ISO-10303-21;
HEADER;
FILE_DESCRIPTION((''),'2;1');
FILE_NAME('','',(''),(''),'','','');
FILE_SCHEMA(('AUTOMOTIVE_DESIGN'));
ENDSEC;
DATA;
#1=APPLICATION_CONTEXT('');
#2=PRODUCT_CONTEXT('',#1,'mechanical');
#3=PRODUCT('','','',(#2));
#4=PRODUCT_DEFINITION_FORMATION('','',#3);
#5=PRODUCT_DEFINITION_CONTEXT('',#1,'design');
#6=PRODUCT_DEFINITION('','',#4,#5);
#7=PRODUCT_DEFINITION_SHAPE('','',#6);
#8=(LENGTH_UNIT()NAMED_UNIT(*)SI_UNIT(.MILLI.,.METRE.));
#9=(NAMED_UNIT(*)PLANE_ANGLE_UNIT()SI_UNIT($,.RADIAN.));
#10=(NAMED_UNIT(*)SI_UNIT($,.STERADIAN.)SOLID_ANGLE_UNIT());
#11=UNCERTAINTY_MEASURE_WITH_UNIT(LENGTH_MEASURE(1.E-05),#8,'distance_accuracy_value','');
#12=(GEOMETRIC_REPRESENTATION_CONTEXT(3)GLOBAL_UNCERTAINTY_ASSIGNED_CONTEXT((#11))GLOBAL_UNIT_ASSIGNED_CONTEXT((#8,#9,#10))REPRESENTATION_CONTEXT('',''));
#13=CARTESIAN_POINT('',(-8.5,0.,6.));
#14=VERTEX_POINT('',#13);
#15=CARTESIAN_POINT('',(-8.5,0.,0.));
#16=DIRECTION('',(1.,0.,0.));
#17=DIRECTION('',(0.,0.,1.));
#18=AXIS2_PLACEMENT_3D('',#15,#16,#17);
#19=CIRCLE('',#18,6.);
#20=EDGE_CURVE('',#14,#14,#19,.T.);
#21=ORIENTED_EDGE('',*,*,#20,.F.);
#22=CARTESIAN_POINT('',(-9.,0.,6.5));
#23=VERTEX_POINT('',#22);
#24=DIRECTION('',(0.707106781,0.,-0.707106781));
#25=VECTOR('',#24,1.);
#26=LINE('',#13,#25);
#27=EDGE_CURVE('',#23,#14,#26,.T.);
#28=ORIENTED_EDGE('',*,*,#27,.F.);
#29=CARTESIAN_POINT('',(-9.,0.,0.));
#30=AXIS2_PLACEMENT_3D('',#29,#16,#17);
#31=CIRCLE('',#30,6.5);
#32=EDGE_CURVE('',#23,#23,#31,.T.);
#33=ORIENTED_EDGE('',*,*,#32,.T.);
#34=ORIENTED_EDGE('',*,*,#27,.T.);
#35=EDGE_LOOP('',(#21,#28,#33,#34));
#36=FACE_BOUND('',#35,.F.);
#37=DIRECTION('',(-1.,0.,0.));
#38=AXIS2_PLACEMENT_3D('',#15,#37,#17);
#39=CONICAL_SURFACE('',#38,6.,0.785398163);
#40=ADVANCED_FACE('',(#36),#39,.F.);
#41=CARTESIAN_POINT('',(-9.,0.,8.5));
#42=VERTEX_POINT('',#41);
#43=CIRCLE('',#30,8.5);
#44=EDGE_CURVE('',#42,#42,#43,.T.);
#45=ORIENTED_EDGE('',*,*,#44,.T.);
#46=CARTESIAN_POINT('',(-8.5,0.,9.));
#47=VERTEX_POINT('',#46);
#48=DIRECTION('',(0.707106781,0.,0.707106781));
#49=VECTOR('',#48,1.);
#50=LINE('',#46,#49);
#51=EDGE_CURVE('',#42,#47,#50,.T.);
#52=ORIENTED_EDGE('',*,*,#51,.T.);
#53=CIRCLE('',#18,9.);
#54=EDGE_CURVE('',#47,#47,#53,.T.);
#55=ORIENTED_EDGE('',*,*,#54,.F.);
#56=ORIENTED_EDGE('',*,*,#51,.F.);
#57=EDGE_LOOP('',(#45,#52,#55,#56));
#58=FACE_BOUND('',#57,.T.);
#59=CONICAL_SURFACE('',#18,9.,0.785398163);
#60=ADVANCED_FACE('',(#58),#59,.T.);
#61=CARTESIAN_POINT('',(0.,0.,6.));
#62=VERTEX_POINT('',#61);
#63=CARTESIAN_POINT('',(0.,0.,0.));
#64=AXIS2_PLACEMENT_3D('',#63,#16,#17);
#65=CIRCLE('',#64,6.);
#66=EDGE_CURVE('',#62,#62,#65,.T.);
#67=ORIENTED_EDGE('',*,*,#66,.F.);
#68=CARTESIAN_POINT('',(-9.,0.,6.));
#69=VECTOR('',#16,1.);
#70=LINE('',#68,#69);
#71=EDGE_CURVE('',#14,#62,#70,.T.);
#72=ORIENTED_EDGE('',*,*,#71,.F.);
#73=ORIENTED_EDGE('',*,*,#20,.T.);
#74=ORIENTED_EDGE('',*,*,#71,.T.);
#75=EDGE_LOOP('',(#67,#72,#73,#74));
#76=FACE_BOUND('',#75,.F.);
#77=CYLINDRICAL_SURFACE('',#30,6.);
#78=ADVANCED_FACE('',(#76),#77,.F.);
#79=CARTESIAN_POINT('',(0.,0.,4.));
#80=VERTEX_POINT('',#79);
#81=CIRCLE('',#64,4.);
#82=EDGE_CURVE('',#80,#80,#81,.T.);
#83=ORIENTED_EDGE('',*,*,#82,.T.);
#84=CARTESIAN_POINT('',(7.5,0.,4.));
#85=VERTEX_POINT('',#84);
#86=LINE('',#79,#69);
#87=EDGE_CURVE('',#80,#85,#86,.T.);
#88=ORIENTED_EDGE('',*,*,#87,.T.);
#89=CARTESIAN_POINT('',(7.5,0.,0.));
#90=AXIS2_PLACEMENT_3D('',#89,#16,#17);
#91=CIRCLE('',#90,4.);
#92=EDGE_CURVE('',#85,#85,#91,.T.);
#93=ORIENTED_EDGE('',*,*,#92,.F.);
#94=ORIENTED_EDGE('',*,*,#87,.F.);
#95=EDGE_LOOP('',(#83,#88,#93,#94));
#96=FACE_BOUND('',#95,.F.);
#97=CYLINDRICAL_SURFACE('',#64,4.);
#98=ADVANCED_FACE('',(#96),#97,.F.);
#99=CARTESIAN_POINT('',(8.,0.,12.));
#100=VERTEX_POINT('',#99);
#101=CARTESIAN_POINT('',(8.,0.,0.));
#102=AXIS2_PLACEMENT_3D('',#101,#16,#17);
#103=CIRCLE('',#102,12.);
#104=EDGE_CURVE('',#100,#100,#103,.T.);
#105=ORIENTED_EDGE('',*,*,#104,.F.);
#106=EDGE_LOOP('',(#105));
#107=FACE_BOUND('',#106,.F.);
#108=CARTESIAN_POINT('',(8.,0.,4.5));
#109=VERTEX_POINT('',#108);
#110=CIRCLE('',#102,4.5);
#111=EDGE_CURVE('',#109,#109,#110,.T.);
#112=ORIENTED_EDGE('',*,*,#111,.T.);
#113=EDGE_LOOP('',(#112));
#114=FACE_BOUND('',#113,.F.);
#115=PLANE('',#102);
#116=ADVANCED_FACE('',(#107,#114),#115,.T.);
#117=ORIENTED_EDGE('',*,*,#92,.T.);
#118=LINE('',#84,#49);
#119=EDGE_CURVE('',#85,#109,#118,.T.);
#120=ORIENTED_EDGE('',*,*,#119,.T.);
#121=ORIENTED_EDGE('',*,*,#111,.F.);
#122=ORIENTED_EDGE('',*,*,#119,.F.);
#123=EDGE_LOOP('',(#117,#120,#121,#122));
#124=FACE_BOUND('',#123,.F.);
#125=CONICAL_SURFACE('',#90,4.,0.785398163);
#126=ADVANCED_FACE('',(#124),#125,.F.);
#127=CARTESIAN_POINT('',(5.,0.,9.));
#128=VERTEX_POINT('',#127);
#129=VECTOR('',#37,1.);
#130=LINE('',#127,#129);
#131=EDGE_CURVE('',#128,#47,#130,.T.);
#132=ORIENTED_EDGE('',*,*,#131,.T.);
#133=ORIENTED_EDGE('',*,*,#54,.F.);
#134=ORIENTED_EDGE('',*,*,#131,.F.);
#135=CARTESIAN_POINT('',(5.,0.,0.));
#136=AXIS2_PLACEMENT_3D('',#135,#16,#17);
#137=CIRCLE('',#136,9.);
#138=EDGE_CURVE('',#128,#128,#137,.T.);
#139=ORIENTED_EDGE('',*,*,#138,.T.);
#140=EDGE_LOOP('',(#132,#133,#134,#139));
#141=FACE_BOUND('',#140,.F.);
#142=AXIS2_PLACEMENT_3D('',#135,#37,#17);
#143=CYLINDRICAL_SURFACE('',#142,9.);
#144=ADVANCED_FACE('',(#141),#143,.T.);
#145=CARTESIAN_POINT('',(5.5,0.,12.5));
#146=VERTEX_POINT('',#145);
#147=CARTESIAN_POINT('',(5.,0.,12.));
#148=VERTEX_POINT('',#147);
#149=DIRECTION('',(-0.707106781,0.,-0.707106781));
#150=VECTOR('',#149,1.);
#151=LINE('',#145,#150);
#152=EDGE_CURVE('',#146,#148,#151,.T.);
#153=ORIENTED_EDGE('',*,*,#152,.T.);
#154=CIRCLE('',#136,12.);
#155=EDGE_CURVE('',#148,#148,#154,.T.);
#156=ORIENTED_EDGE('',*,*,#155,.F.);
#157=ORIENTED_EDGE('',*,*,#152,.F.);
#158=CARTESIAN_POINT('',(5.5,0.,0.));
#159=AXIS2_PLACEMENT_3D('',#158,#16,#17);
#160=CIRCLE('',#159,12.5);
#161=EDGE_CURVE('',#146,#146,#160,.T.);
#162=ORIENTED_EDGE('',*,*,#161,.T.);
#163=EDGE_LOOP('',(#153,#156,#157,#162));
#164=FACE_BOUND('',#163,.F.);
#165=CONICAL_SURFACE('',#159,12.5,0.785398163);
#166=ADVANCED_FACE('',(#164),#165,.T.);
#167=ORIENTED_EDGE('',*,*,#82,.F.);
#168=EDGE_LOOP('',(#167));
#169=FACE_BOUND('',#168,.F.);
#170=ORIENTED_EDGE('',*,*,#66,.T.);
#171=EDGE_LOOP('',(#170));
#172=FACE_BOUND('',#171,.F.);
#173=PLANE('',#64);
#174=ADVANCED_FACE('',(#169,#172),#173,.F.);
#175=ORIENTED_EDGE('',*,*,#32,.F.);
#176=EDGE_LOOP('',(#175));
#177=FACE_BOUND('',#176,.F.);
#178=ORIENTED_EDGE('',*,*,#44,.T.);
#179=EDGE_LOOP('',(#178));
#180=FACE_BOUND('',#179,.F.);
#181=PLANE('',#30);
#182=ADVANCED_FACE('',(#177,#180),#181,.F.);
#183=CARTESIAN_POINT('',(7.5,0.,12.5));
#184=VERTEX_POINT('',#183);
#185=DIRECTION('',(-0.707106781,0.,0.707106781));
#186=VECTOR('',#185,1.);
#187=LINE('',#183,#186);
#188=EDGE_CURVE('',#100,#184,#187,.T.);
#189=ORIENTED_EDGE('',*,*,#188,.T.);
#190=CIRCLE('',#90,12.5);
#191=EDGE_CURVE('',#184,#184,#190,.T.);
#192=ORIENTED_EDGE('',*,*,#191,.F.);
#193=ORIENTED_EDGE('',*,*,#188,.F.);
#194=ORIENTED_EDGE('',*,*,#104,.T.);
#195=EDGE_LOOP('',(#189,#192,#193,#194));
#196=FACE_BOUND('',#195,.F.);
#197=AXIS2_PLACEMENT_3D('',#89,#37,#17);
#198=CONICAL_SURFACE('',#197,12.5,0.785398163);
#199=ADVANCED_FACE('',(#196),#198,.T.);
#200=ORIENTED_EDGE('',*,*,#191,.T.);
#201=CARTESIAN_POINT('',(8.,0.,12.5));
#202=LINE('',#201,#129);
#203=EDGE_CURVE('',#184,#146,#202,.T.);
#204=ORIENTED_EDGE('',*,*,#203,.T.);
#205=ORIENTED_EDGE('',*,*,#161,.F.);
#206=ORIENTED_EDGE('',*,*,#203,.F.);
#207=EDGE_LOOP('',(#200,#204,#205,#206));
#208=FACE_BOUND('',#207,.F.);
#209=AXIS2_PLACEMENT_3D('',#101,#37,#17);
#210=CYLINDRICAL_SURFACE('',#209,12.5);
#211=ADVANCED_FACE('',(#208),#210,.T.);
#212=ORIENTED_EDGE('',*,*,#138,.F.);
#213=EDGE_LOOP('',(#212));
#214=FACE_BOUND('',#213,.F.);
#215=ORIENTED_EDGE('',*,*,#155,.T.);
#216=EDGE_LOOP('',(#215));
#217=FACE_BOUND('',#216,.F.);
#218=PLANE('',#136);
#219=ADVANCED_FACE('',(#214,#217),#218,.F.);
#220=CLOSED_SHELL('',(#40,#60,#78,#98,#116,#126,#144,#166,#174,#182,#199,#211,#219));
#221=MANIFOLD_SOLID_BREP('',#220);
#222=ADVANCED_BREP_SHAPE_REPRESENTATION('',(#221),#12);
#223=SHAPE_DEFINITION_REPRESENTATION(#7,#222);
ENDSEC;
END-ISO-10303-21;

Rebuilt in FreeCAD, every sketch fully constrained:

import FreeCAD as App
import Part
import Sketcher


def edges_at(feature, points):
    """Names of the edges that pass closest to the given points."""
    edges = feature.Shape.Edges
    near = lambda p: min(range(len(edges)), key=lambda i: edges[i].distToShape(Part.Vertex(*p))[0])
    return sorted({f"Edge{near(p) + 1}" for p in points})

doc = App.newDocument("Part")
body = doc.addObject("PartDesign::Body", "Body")

# Sketch on XZ plane
sketch1 = body.newObject("Sketcher::SketchObject", "Sketch")
sketch1.AttachmentSupport = (doc.getObject("XZ_Plane"), [""])
sketch1.MapMode = "FlatFace"
sketch1.addGeometry([
    Part.LineSegment(App.Vector(-9, 9, 0), App.Vector(-9, 6, 0)),  # 0
    Part.LineSegment(App.Vector(-9, 6, 0), App.Vector(0, 6, 0)),  # 1
    Part.LineSegment(App.Vector(0, 6, 0), App.Vector(0, 4, 0)),  # 2
    Part.LineSegment(App.Vector(0, 4, 0), App.Vector(8, 4, 0)),  # 3
    Part.LineSegment(App.Vector(8, 4, 0), App.Vector(8, 12.5, 0)),  # 4
    Part.LineSegment(App.Vector(8, 12.5, 0), App.Vector(5, 12.5, 0)),  # 5
    Part.LineSegment(App.Vector(5, 12.5, 0), App.Vector(5, 9, 0)),  # 6
    Part.LineSegment(App.Vector(5, 9, 0), App.Vector(-9, 9, 0)),  # 7
], False)
sketch1.addConstraint([
    Sketcher.Constraint("Coincident", 0, 2, 1, 1),
    Sketcher.Constraint("Coincident", 1, 2, 2, 1),
    Sketcher.Constraint("Coincident", 2, 2, 3, 1),
    Sketcher.Constraint("Coincident", 3, 2, 4, 1),
    Sketcher.Constraint("Coincident", 4, 2, 5, 1),
    Sketcher.Constraint("Coincident", 5, 2, 6, 1),
    Sketcher.Constraint("Coincident", 6, 2, 7, 1),
    Sketcher.Constraint("Coincident", 7, 2, 0, 1),
    Sketcher.Constraint("Vertical", 0),
    Sketcher.Constraint("Horizontal", 1),
    Sketcher.Constraint("Vertical", 2),
    Sketcher.Constraint("Horizontal", 3),
    Sketcher.Constraint("Vertical", 4),
    Sketcher.Constraint("Horizontal", 5),
    Sketcher.Constraint("Vertical", 6),
    Sketcher.Constraint("Horizontal", 7),
    Sketcher.Constraint("PointOnObject", 1, 2, -2),
    Sketcher.Constraint("Equal", 5, 0),
    Sketcher.Constraint("DistanceX", 1, 1, 1, 2, 9.0),
    Sketcher.Constraint("DistanceX", 3, 1, 3, 2, 8.0),
    Sketcher.Constraint("DistanceX", 5, 2, 5, 1, 3.0),
    Sketcher.Constraint("DistanceY", 2, 2, 2, 1, 2.0),
    Sketcher.Constraint("DistanceY", 4, 1, 4, 2, 8.5),
    Sketcher.Constraint("DistanceY", -1, 1, 0, 2, 6.0),
])
revolution = body.newObject("PartDesign::Revolution", "Revolution")
revolution.Profile = sketch1
revolution.ReferenceAxis = (sketch1, ["H_Axis"])
revolution.Angle = 360
doc.recompute()

chamfer = body.newObject("PartDesign::Chamfer", "Chamfer")
chamfer.Base = (revolution, edges_at(revolution, [
    (-9, 0, -6),
    (-9, 0, -9),
    (5, 0, -12.5),
    (8, 0, -12.5),
    (8, 0, -4),
]))
chamfer.Size = 0.5

doc.recompute()
